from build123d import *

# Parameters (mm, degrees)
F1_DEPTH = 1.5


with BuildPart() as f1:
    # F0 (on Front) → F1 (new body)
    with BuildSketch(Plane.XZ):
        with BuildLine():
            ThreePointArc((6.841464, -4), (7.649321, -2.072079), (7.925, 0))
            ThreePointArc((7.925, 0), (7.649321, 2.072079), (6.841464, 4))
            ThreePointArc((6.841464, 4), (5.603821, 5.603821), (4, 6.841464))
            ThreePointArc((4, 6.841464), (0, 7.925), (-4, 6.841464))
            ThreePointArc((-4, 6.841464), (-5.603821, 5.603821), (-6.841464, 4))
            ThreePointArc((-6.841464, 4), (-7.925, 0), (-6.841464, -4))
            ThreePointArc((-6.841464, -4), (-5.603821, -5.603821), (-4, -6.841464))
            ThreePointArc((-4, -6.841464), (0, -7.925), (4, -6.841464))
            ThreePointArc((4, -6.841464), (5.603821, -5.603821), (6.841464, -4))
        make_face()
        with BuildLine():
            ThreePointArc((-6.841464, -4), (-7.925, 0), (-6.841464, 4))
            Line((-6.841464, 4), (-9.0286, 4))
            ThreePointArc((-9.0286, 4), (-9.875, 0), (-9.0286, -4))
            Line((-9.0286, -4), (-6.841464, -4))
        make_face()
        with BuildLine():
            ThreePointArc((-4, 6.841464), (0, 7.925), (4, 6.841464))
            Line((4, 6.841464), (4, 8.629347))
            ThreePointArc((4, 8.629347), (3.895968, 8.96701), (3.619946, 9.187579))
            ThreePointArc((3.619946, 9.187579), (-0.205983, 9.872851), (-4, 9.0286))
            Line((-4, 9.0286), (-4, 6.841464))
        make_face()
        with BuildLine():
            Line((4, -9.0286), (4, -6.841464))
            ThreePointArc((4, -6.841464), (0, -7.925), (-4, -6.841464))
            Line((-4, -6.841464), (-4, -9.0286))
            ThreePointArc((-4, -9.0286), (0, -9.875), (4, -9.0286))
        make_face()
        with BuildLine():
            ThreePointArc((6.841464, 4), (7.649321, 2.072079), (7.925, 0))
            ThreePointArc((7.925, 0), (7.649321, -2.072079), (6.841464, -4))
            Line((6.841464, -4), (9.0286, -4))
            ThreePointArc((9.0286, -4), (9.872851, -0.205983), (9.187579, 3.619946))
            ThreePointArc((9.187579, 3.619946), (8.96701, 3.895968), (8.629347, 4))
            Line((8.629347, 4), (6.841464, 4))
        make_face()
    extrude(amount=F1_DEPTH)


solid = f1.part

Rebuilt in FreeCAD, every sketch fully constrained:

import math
import FreeCAD as App
import Part
import Sketcher
from FreeCAD import Vector

doc = App.newDocument("Part")
params = doc.addObject("Spreadsheet::Sheet", "Params")
for row, (alias, value) in enumerate([
    ("pad1_length", "1.5 mm"),
], start=1):
    params.set(f"A{row}", alias)
    params.set(f"B{row}", "=" + value)
    params.setAlias(f"B{row}", alias)

body = doc.addObject("PartDesign::Body", "Body")

# Sketch on XZ plane
sketch1 = body.newObject("Sketcher::SketchObject", "Sketch")
sketch1.AttachmentSupport = (doc.getObject("XZ_Plane"), [""])
sketch1.MapMode = "FlatFace"
sketch1.addGeometry(Part.ArcOfCircle(Part.Circle(Vector(-0.000014, -0.000014, 0), Vector(0, 0, 1), 7.925019), math.radians(30.313589), math.radians(59.686411)), False)
sketch1.addGeometry(Part.LineSegment(Vector(4, 6.841464, 0), Vector(4, 8.629347, 0)), False)
sketch1.addGeometry(Part.ArcOfCircle(Part.Circle(Vector(3.400004, 8.629349, 0), Vector(0, 0, 1), 0.599996), math.radians(-0.0002), math.radians(68.495622)), False)
sketch1.addGeometry(Part.ArcOfCircle(Part.Circle(Vector(0, -0.000001, 0), Vector(0, 0, 1), 9.875001), math.radians(68.495346), math.radians(113.895092)), False)
sketch1.addGeometry(Part.LineSegment(Vector(-4, 9.0286, 0), Vector(-4, 6.841464, 0)), False)
sketch1.addGeometry(Part.ArcOfCircle(Part.Circle(Vector(0.000014, -0.000014, 0), Vector(0, 0, 1), 7.925019), math.radians(120.313589), math.radians(149.686411)), False)
sketch1.addGeometry(Part.LineSegment(Vector(-6.841464, 4, 0), Vector(-9.0286, 4, 0)), False)
sketch1.addGeometry(Part.ArcOfCircle(Part.Circle(Vector(-0.000004, 0, 0), Vector(0, 0, 1), 9.874996), math.radians(156.104896), math.radians(203.895104)), False)
sketch1.addGeometry(Part.LineSegment(Vector(-9.0286, -4, 0), Vector(-6.841464, -4, 0)), False)
sketch1.addGeometry(Part.ArcOfCircle(Part.Circle(Vector(0.000014, 0.000014, 0), Vector(0, 0, 1), 7.925019), math.radians(-149.686411), math.radians(-120.313589)), False)
sketch1.addGeometry(Part.LineSegment(Vector(-4, -6.841464, 0), Vector(-4, -9.0286, 0)), False)
sketch1.addGeometry(Part.ArcOfCircle(Part.Circle(Vector(0, -0.000004, 0), Vector(0, 0, 1), 9.874996), math.radians(-113.895104), math.radians(-66.104896)), False)
sketch1.addGeometry(Part.LineSegment(Vector(4, -9.0286, 0), Vector(4, -6.841464, 0)), False)
sketch1.addGeometry(Part.ArcOfCircle(Part.Circle(Vector(-0.000014, 0.000014, 0), Vector(0, 0, 1), 7.925019), math.radians(-59.686411), math.radians(-30.313589)), False)
sketch1.addGeometry(Part.LineSegment(Vector(6.841464, -4, 0), Vector(9.0286, -4, 0)), False)
sketch1.addGeometry(Part.ArcOfCircle(Part.Circle(Vector(-0.000001, 0, 0), Vector(0, 0, 1), 9.875001), math.radians(-23.895092), math.radians(21.504654)), False)
sketch1.addGeometry(Part.ArcOfCircle(Part.Circle(Vector(8.629349, 3.400004, 0), Vector(0, 0, 1), 0.599996), math.radians(21.504378), math.radians(90.0002)), False)
sketch1.addGeometry(Part.LineSegment(Vector(8.629347, 4, 0), Vector(6.841464, 4, 0)), False)
sketch1.addConstraint(Sketcher.Constraint("Coincident", 0, 2, 1, 1))
sketch1.addConstraint(Sketcher.Constraint("Coincident", 1, 2, 2, 1))
sketch1.addConstraint(Sketcher.Constraint("Coincident", 2, 2, 3, 1))
sketch1.addConstraint(Sketcher.Constraint("Coincident", 3, 2, 4, 1))
sketch1.addConstraint(Sketcher.Constraint("Coincident", 4, 2, 5, 1))
sketch1.addConstraint(Sketcher.Constraint("Coincident", 5, 2, 6, 1))
sketch1.addConstraint(Sketcher.Constraint("Coincident", 6, 2, 7, 1))
sketch1.addConstraint(Sketcher.Constraint("Coincident", 7, 2, 8, 1))
sketch1.addConstraint(Sketcher.Constraint("Coincident", 8, 2, 9, 1))
sketch1.addConstraint(Sketcher.Constraint("Coincident", 9, 2, 10, 1))
sketch1.addConstraint(Sketcher.Constraint("Coincident", 10, 2, 11, 1))
sketch1.addConstraint(Sketcher.Constraint("Coincident", 11, 2, 12, 1))
sketch1.addConstraint(Sketcher.Constraint("Coincident", 12, 2, 13, 1))
sketch1.addConstraint(Sketcher.Constraint("Coincident", 13, 2, 14, 1))
sketch1.addConstraint(Sketcher.Constraint("Coincident", 14, 2, 15, 1))
sketch1.addConstraint(Sketcher.Constraint("Coincident", 15, 2, 16, 1))
sketch1.addConstraint(Sketcher.Constraint("Coincident", 16, 2, 17, 1))
sketch1.addConstraint(Sketcher.Constraint("Coincident", 17, 2, 0, 1))
sketch1.addConstraint(Sketcher.Constraint("Vertical", 1))
sketch1.addConstraint(Sketcher.Constraint("Vertical", 4))
sketch1.addConstraint(Sketcher.Constraint("Horizontal", 6))
sketch1.addConstraint(Sketcher.Constraint("Horizontal", 8))
sketch1.addConstraint(Sketcher.Constraint("Vertical", 10))
sketch1.addConstraint(Sketcher.Constraint("Vertical", 12))
sketch1.addConstraint(Sketcher.Constraint("Horizontal", 14))
sketch1.addConstraint(Sketcher.Constraint("Horizontal", 17))
sketch1.addConstraint(Sketcher.Constraint("Coincident", 3, 3, -1, 1))
sketch1.addConstraint(Sketcher.Constraint("Coincident", 7, 3, -1, 1))
sketch1.addConstraint(Sketcher.Constraint("Coincident", 11, 3, -1, 1))
sketch1.addConstraint(Sketcher.Constraint("Coincident", 15, 3, -1, 1))
sketch1.addConstraint(Sketcher.Constraint("Equal", 0, 5))
sketch1.addConstraint(Sketcher.Constraint("Equal", 5, 9))
sketch1.addConstraint(Sketcher.Constraint("Equal", 7, 11))
sketch1.addConstraint(Sketcher.Constraint("Equal", 9, 13))
sketch1.addConstraint(Sketcher.Constraint("Equal", 3, 15))
sketch1.addConstraint(Sketcher.Constraint("Equal", 2, 16))
sketch1.addConstraint(Sketcher.Constraint("Symmetric", 0, 3, 9, 3, -1, 1))
sketch1.addConstraint(Sketcher.Constraint("Symmetric", 5, 3, 13, 3, -1, 1))
sketch1.addConstraint(Sketcher.Constraint("Symmetric", 3, 2, 11, 2, -1, 1))
sketch1.addConstraint(Sketcher.Constraint("Symmetric", 0, 3, 5, 3, -2))
sketch1.addConstraint(Sketcher.Constraint("Horizontal", 0, 2, 4, 2))
sketch1.addConstraint(Sketcher.Constraint("Horizontal", 10, 2, 11, 2))
sketch1.addConstraint(Sketcher.Constraint("Horizontal", 8, 2, 13, 2))
sketch1.addConstraint(Sketcher.Constraint("Horizontal", 6, 2, 16, 2))
sketch1.addConstraint(Sketcher.Constraint("Vertical", 6, 2, 7, 2))
sketch1.addConstraint(Sketcher.Constraint("Equal", 17, 1))
sketch1.addConstraint(Sketcher.Constraint("Equal", 14, 4))
sketch1.addConstraint(Sketcher.Constraint("DistanceX", -1, 1, 0, 2, 4.0))
sketch1.addConstraint(Sketcher.Constraint("DistanceY", -1, 1, 5, 2, 4.0))
sketch1.addConstraint(Sketcher.Constraint("Radius", 3, 9.875001))
sketch1.addConstraint(Sketcher.Constraint("Radius", 0, 7.925019))
sketch1.addConstraint(Sketcher.Constraint("Radius", 2, 0.599996))
sketch1.addConstraint(Sketcher.Constraint("DistanceY", 15, 2, 1, 2, 5.009401))
sketch1.addConstraint(Sketcher.Constraint("DistanceX", 6, 2, 6, 1, 2.187136))
sketch1.addConstraint(Sketcher.Constraint("DistanceX", 17, 2, 17, 1, 1.787883))
sketch1.addConstraint(Sketcher.Constraint("DistanceY", -1, 1, 2, 2, 9.187579))
pad1 = body.newObject("PartDesign::Pad", "Pad")
pad1.Profile = sketch1
pad1.setExpression("Length", "Params.pad1_length")

doc.recompute()
